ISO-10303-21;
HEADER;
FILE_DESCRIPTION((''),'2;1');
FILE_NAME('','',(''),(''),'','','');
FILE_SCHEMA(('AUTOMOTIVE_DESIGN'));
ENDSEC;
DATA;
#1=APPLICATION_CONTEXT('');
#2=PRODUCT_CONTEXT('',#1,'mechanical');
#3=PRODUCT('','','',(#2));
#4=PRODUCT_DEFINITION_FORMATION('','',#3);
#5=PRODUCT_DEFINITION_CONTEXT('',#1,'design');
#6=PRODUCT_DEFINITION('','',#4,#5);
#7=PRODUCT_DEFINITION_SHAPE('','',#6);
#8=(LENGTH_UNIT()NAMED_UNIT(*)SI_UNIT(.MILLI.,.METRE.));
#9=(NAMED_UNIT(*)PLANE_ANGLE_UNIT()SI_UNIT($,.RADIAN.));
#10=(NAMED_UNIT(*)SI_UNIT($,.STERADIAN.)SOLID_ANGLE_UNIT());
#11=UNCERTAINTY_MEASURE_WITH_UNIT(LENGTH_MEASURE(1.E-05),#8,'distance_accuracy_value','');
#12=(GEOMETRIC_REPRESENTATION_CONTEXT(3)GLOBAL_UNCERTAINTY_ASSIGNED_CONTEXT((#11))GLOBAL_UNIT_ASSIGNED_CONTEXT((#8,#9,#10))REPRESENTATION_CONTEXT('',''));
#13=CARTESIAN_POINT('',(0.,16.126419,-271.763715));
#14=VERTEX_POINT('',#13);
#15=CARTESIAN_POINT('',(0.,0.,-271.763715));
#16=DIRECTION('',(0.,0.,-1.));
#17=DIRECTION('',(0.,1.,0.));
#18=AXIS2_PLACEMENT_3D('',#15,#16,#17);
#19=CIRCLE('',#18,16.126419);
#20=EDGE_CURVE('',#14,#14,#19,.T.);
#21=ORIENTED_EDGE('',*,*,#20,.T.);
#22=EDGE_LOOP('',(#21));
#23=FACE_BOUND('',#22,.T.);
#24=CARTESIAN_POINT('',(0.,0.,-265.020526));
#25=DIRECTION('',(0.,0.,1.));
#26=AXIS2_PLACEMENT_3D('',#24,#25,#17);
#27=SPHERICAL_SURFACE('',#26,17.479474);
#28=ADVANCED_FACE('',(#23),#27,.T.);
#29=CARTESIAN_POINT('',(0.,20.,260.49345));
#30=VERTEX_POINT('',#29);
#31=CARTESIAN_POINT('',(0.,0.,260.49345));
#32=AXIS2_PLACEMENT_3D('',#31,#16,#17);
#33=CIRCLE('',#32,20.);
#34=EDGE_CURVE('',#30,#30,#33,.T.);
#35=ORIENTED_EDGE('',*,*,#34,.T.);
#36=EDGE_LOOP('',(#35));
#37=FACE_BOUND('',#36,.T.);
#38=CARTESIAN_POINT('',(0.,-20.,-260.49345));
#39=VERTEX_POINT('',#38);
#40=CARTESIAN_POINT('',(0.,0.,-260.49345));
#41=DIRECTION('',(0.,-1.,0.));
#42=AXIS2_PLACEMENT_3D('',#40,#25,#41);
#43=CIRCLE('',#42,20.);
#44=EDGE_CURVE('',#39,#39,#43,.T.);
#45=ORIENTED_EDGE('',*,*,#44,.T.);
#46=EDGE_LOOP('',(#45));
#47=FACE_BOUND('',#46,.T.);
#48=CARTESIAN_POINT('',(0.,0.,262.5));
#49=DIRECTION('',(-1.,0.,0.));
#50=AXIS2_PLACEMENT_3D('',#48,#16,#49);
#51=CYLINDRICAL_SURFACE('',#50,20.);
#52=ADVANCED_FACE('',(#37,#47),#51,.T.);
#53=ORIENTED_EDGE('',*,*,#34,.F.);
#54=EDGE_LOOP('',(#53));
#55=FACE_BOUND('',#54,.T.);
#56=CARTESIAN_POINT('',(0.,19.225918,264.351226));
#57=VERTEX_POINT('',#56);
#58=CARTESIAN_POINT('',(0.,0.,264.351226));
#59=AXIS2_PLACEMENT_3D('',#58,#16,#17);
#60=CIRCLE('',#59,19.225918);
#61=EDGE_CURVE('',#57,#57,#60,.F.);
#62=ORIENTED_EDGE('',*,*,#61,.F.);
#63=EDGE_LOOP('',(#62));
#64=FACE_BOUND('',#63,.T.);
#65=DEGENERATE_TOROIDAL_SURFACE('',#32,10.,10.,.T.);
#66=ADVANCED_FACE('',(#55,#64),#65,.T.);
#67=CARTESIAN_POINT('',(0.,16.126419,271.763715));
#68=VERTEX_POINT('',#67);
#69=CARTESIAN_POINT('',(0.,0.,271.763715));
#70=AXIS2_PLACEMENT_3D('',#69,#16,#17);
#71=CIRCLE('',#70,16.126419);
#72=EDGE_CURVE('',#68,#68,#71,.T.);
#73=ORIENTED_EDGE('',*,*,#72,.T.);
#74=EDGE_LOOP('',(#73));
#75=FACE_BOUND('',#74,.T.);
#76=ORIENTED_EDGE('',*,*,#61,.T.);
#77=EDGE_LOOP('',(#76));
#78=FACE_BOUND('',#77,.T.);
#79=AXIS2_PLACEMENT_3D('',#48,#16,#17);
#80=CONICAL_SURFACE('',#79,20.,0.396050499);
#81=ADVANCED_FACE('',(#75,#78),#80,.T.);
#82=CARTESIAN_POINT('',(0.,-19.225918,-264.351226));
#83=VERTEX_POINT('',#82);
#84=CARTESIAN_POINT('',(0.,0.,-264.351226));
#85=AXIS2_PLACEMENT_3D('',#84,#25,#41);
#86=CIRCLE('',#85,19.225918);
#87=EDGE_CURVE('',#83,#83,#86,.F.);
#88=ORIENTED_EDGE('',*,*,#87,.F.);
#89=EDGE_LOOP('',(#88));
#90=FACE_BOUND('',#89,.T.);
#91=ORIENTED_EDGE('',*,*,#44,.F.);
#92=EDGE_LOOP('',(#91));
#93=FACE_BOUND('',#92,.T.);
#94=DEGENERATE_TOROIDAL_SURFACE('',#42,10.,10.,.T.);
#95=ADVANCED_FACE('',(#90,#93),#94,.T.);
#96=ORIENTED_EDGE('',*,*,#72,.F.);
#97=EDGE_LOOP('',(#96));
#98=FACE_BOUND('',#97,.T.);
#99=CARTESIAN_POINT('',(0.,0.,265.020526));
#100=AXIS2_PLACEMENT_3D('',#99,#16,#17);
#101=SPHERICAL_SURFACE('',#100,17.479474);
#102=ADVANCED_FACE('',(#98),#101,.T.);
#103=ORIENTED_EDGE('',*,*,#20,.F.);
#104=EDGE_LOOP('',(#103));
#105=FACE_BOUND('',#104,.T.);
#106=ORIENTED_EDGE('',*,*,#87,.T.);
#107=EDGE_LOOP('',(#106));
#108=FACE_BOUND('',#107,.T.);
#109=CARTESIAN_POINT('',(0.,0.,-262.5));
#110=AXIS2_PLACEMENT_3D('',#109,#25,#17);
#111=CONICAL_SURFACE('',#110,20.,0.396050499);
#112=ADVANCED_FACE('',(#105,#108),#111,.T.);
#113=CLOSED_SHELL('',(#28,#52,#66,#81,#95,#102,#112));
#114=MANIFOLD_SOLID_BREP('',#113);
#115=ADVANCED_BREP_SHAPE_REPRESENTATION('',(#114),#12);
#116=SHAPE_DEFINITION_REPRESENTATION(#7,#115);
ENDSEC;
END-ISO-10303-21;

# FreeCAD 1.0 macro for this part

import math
import FreeCAD as App
import Part
import Sketcher

V = App.Vector


def edges_at(feature, points):
    """Names of the edges that pass closest to the given points."""
    edges = feature.Shape.Edges
    near = lambda p: min(range(len(edges)), key=lambda i: edges[i].distToShape(Part.Vertex(*p))[0])
    return sorted({f"Edge{near(p) + 1}" for p in points})

doc = App.newDocument("Part")
params = doc.addObject("Spreadsheet::Sheet", "Params")
for row, (alias, value) in enumerate([
    ("sketch1_diameter", "40 mm"),
    ("pad1_length", "525 mm"),
    ("sketch2_width", "20 mm"),
    ("revolution_angle", "360 deg"),
    ("fillet_radius", "10 mm"),
], start=1):
    params.set(f"A{row}", alias)
    params.set(f"B{row}", "=" + value)
    params.setAlias(f"B{row}", alias)

body = doc.addObject("PartDesign::Body", "Body")

sketch1 = body.newObject("Sketcher::SketchObject", "Sketch")
sketch1.AttachmentSupport = (doc.getObject("XY_Plane"), [""])
sketch1.MapMode = "FlatFace"
sketch1.addGeometry(Part.Circle(V(0, 0, 0), V(0, 0, 1), 20), False)
sketch1.addConstraint([
    Sketcher.Constraint("Coincident", 0, 3, -1, 1),
    Sketcher.Constraint("Diameter", 0, 40.0),
])
sketch1.setExpression("Constraints[1]", "Params.sketch1_diameter")
pad1 = body.newObject("PartDesign::Pad", "Pad")
pad1.Profile = sketch1
pad1.setExpression("Length", "Params.pad1_length")
pad1.Midplane = True

sketch2 = body.newObject("Sketcher::SketchObject", "Sketch001")
sketch2.AttachmentSupport = (doc.getObject("YZ_Plane"), [""])
sketch2.MapMode = "FlatFace"
sketch2.addGeometry([
    Part.LineSegment(V(0, 262.5, 0), V(20, 262.5, 0)),
    Part.LineSegment(V(20, 262.5, 0), V(16.126419, 271.763715, 0)),
    Part.ArcOfCircle(Part.Circle(V(0, 265.020526, 0), V(0, 0, 1), 17.479474), math.radians(22.692022), math.radians(90)),
    Part.LineSegment(V(0, 282.5, 0), V(0, 262.5, 0)),
], False)
sketch2.addConstraint([
    Sketcher.Constraint("Coincident", 0, 2, 1, 1),
    Sketcher.Constraint("Tangent", 1, 2, 2, 1),
    Sketcher.Constraint("Coincident", 2, 2, 3, 1),
    Sketcher.Constraint("Coincident", 3, 2, 0, 1),
    Sketcher.Constraint("Horizontal", 0),
    Sketcher.Constraint("Vertical", 3),
    Sketcher.Constraint("PointOnObject", 2, 3, -2),
    Sketcher.Constraint("PointOnObject", 2, 2, -2),
    Sketcher.Constraint("Equal", 0, 3),
    Sketcher.Constraint("DistanceX", 0, 1, 0, 2, 20.0),
    Sketcher.Constraint("DistanceY", -1, 1, 0, 2, 262.5),
    Sketcher.Constraint("Radius", 2, 17.479474),
])
sketch2.setExpression("Constraints[9]", "Params.sketch2_width")
revolution = body.newObject("PartDesign::Revolution", "Revolution")
revolution.Profile = sketch2
revolution.ReferenceAxis = (sketch2, ["V_Axis"])
revolution.setExpression("Angle", "Params.revolution_angle")
doc.recompute()

mirrored = body.newObject("PartDesign::Mirrored", "Mirrored")
mirrored.Originals = [revolution]
mirrored.MirrorPlane = (doc.getObject("XY_Plane"), [""])
body.Tip = mirrored
doc.recompute()

fillet = body.newObject("PartDesign::Fillet", "Fillet")
fillet.Base = (mirrored, edges_at(mirrored, [(14.142, 14.142, 262.5), (-14.142, -14.142, -262.5)]))
fillet.setExpression("Radius", "Params.fillet_radius")

doc.recompute()
